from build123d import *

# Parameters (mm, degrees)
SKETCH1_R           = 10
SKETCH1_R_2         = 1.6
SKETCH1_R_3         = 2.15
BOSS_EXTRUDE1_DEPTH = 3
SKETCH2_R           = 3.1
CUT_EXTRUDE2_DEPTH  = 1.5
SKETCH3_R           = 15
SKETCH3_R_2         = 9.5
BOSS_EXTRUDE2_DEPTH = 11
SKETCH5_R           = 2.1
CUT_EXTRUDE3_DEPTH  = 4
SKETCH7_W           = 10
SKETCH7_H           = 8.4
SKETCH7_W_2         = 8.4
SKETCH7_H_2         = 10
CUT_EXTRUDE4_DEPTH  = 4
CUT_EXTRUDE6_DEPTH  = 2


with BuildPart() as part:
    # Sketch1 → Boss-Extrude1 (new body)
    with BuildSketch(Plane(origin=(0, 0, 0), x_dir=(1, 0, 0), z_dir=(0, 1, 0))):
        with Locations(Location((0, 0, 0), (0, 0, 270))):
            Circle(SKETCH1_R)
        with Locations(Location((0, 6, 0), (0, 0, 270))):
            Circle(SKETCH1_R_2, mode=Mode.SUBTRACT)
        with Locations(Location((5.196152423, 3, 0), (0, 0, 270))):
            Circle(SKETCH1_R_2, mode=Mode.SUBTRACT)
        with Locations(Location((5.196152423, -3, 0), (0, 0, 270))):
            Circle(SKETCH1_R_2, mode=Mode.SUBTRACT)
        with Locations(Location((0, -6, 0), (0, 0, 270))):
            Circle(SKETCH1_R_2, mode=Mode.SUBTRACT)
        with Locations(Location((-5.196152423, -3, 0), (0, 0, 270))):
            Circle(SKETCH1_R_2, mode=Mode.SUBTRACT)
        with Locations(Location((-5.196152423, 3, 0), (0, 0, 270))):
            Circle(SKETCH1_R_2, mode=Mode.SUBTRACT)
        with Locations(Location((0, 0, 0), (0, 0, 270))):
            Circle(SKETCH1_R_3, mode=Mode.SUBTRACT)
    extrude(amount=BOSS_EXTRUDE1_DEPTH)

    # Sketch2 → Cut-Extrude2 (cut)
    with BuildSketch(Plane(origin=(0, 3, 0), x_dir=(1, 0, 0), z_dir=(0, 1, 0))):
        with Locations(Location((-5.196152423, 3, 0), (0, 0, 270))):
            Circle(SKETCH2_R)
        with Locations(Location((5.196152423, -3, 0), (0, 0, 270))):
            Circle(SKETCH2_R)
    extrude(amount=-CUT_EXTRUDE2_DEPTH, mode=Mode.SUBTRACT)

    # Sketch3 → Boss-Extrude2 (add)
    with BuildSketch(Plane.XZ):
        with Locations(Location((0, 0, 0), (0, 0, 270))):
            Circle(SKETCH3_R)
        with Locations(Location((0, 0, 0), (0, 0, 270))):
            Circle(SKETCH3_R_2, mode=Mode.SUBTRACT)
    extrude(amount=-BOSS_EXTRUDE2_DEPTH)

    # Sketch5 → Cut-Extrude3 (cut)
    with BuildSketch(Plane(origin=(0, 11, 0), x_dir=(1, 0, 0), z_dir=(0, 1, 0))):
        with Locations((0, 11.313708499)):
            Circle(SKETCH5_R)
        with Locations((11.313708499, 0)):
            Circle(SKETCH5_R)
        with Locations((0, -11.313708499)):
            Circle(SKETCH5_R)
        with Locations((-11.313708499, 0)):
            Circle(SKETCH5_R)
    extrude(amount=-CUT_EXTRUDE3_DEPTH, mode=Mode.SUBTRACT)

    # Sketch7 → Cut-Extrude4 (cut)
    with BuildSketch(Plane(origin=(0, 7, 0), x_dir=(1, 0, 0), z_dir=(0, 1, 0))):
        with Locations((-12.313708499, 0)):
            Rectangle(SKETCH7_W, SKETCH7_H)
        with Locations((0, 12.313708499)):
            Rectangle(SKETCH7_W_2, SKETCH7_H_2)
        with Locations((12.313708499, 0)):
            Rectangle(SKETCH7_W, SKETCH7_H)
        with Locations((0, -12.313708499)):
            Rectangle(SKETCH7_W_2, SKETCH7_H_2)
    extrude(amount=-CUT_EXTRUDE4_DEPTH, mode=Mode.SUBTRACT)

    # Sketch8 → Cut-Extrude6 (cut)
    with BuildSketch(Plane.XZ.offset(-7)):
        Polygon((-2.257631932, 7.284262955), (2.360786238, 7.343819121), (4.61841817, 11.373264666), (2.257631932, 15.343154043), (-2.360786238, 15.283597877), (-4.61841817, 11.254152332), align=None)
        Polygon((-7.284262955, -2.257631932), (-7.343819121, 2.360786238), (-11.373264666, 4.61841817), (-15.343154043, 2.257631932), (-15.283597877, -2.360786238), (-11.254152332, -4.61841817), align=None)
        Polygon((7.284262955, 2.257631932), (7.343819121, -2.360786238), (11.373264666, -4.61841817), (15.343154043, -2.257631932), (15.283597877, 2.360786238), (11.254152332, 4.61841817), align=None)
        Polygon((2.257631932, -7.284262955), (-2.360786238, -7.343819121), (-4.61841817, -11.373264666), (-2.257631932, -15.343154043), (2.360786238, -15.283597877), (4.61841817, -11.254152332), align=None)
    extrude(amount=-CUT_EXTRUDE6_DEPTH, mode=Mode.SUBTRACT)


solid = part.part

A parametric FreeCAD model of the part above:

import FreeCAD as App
import Part
import Sketcher
Q = App.Units.Quantity

doc = App.newDocument("Part")
body = doc.addObject("PartDesign::Body", "Body")

# Sketch on XZ plane
sketch1 = body.newObject("Sketcher::SketchObject", "Sketch")
sketch1.AttachmentSupport = (doc.getObject("XZ_Plane"), [""])
sketch1.MapMode = "FlatFace"
sketch1.addGeometry(Part.Circle(App.Vector(0, 0, 0), App.Vector(0, 0, 1), 10), False)
sketch1.addGeometry(Part.Circle(App.Vector(-5.2, -3, 0), App.Vector(0, 0, 1), 1.6), False)
sketch1.addGeometry(Part.Circle(App.Vector(0, -6, 0), App.Vector(0, 0, 1), 1.6), False)
sketch1.addGeometry(Part.Circle(App.Vector(-5.2, 3, 0), App.Vector(0, 0, 1), 1.6), False)
sketch1.addGeometry(Part.Circle(App.Vector(0, 0, 0), App.Vector(0, 0, 1), 2.1), False)
sketch1.addGeometry(Part.Circle(App.Vector(5.2, -3, 0), App.Vector(0, 0, 1), 1.6), False)
sketch1.addGeometry(Part.Circle(App.Vector(0, 6, 0), App.Vector(0, 0, 1), 1.6), False)
sketch1.addGeometry(Part.Circle(App.Vector(5.2, 3, 0), App.Vector(0, 0, 1), 1.6), False)
sketch1.addConstraint(Sketcher.Constraint("Coincident", 0, 3, -1, 1))
sketch1.addConstraint(Sketcher.Constraint("Coincident", 4, 3, -1, 1))
sketch1.addConstraint(Sketcher.Constraint("Equal", 1, 2))
sketch1.addConstraint(Sketcher.Constraint("Equal", 2, 3))
sketch1.addConstraint(Sketcher.Constraint("Equal", 3, 5))
sketch1.addConstraint(Sketcher.Constraint("Equal", 5, 6))
sketch1.addConstraint(Sketcher.Constraint("Equal", 6, 7))
sketch1.addConstraint(Sketcher.Constraint("Symmetric", 3, 3, 5, 3, -1, 1))
sketch1.addConstraint(Sketcher.Constraint("Symmetric", 2, 3, 6, 3, -1, 1))
sketch1.addConstraint(Sketcher.Constraint("Symmetric", 1, 3, 7, 3, -1, 1))
sketch1.addConstraint(Sketcher.Constraint("Symmetric", 1, 3, 5, 3, -2))
sketch1.addConstraint(Sketcher.Constraint("PointOnObject", 2, 3, -2))
sketch1.addConstraint(Sketcher.Constraint("Diameter", 0, Q("20 mm")))
sketch1.addConstraint(Sketcher.Constraint("Diameter", 1, Q("3.2 mm")))
sketch1.addConstraint(Sketcher.Constraint("Diameter", 4, Q("4.3 mm")))
sketch1.addConstraint(Sketcher.Constraint("DistanceY", 1, 3, -1, 1, Q("3 mm")))
sketch1.addConstraint(Sketcher.Constraint("DistanceY", 2, 3, -1, 1, Q("6 mm")))
sketch1.addConstraint(Sketcher.Constraint("DistanceX", 1, 3, -1, 1, Q("5.196152 mm")))
pad1 = body.newObject("PartDesign::Pad", "Pad")
pad1.Profile = sketch1
pad1.Length = 3
pad1.Reversed = True

# Sketch on XZ plane
sketch2 = body.newObject("Sketcher::SketchObject", "Sketch001")
sketch2.AttachmentSupport = (doc.getObject("XZ_Plane"), [""])
sketch2.MapMode = "FlatFace"
sketch2.AttachmentOffset = App.Placement(App.Vector(0, 0, -3), App.Rotation())
sketch2.addGeometry(Part.Circle(App.Vector(-5.2, -3, 0), App.Vector(0, 0, 1), 3.1), False)
sketch2.addGeometry(Part.Circle(App.Vector(5.2, 3, 0), App.Vector(0, 0, 1), 3.1), False)
sketch2.addConstraint(Sketcher.Constraint("Equal", 0, 1))
sketch2.addConstraint(Sketcher.Constraint("Symmetric", 0, 3, 1, 3, -1, 1))
sketch2.addConstraint(Sketcher.Constraint("Diameter", 0, Q("6.2 mm")))
sketch2.addConstraint(Sketcher.Constraint("DistanceY", 0, 3, -1, 1, Q("3 mm")))
sketch2.addConstraint(Sketcher.Constraint("DistanceX", 0, 3, -1, 1, Q("5.196152 mm")))
pocket1 = body.newObject("PartDesign::Pocket", "Pocket")
pocket1.Profile = sketch2
pocket1.Length = 1.5
pocket1.Reversed = True

# Sketch on XZ plane
sketch3 = body.newObject("Sketcher::SketchObject", "Sketch002")
sketch3.AttachmentSupport = (doc.getObject("XZ_Plane"), [""])
sketch3.MapMode = "FlatFace"
sketch3.addGeometry(Part.Circle(App.Vector(0, 0, 0), App.Vector(0, 0, 1), 15), False)
sketch3.addGeometry(Part.Circle(App.Vector(0, 0, 0), App.Vector(0, 0, 1), 10), False)
sketch3.addConstraint(Sketcher.Constraint("Coincident", 0, 3, -1, 1))
sketch3.addConstraint(Sketcher.Constraint("Coincident", 1, 3, -1, 1))
sketch3.addConstraint(Sketcher.Constraint("Diameter", 0, Q("30 mm")))
sketch3.addConstraint(Sketcher.Constraint("Diameter", 1, Q("19 mm")))
pad2 = body.newObject("PartDesign::Pad", "Pad001")
pad2.Profile = sketch3
pad2.Length = 11
pad2.Reversed = True

# Sketch on XZ plane
sketch4 = body.newObject("Sketcher::SketchObject", "Sketch003")
sketch4.AttachmentSupport = (doc.getObject("XZ_Plane"), [""])
sketch4.MapMode = "FlatFace"
sketch4.AttachmentOffset = App.Placement(App.Vector(0, 0, -11), App.Rotation())
sketch4.addGeometry(Part.Circle(App.Vector(0, -11.3, 0), App.Vector(0, 0, 1), 2.1), False)
sketch4.addGeometry(Part.Circle(App.Vector(11.3, 0, 0), App.Vector(0, 0, 1), 2.1), False)
sketch4.addGeometry(Part.Circle(App.Vector(0, 11.3, 0), App.Vector(0, 0, 1), 2.1), False)
sketch4.addGeometry(Part.Circle(App.Vector(-11.3, 0, 0), App.Vector(0, 0, 1), 2.1), False)
sketch4.addConstraint(Sketcher.Constraint("Equal", 0, 1))
sketch4.addConstraint(Sketcher.Constraint("Equal", 1, 2))
sketch4.addConstraint(Sketcher.Constraint("Equal", 2, 3))
sketch4.addConstraint(Sketcher.Constraint("Symmetric", 0, 3, 2, 3, -1, 1))
sketch4.addConstraint(Sketcher.Constraint("Symmetric", 1, 3, 3, 3, -1, 1))
sketch4.addConstraint(Sketcher.Constraint("PointOnObject", 0, 3, -2))
sketch4.addConstraint(Sketcher.Constraint("PointOnObject", 1, 3, -1))
sketch4.addConstraint(Sketcher.Constraint("Diameter", 0, Q("4.2 mm")))
sketch4.addConstraint(Sketcher.Constraint("DistanceY", 0, 3, -1, 1, Q("11.313708 mm")))
sketch4.addConstraint(Sketcher.Constraint("DistanceX", -1, 1, 1, 3, Q("11.313708 mm")))
pocket2 = body.newObject("PartDesign::Pocket", "Pocket001")
pocket2.Profile = sketch4
pocket2.Length = 4
pocket2.Reversed = True

# Sketch on XZ plane
sketch5 = body.newObject("Sketcher::SketchObject", "Sketch004")
sketch5.AttachmentSupport = (doc.getObject("XZ_Plane"), [""])
sketch5.MapMode = "FlatFace"
sketch5.AttachmentOffset = App.Placement(App.Vector(0, 0, -7), App.Rotation())
sketch5.addGeometry(Part.LineSegment(App.Vector(-17, -4, 0), App.Vector(-17, 4, 0)), False)
sketch5.addGeometry(Part.LineSegment(App.Vector(-17, 4, 0), App.Vector(-7, 4, 0)), False)
sketch5.addGeometry(Part.LineSegment(App.Vector(-7, 4, 0), App.Vector(-7, -4, 0)), False)
sketch5.addGeometry(Part.LineSegment(App.Vector(-7, -4, 0), App.Vector(-17, -4, 0)), False)
sketch5.addGeometry(Part.LineSegment(App.Vector(-4, -17, 0), App.Vector(-4, -7, 0)), False)
sketch5.addGeometry(Part.LineSegment(App.Vector(-4, -7, 0), App.Vector(4, -7, 0)), False)
sketch5.addGeometry(Part.LineSegment(App.Vector(4, -7, 0), App.Vector(4, -17, 0)), False)
sketch5.addGeometry(Part.LineSegment(App.Vector(4, -17, 0), App.Vector(-4, -17, 0)), False)
sketch5.addGeometry(Part.LineSegment(App.Vector(7, -4, 0), App.Vector(7, 4, 0)), False)
sketch5.addGeometry(Part.LineSegment(App.Vector(7, 4, 0), App.Vector(17, 4, 0)), False)
sketch5.addGeometry(Part.LineSegment(App.Vector(17, 4, 0), App.Vector(17, -4, 0)), False)
sketch5.addGeometry(Part.LineSegment(App.Vector(17, -4, 0), App.Vector(7, -4, 0)), False)
sketch5.addGeometry(Part.LineSegment(App.Vector(-4, 7, 0), App.Vector(-4, 17, 0)), False)
sketch5.addGeometry(Part.LineSegment(App.Vector(-4, 17, 0), App.Vector(4, 17, 0)), False)
sketch5.addGeometry(Part.LineSegment(App.Vector(4, 17, 0), App.Vector(4, 7, 0)), False)
sketch5.addGeometry(Part.LineSegment(App.Vector(4, 7, 0), App.Vector(-4, 7, 0)), False)
sketch5.addConstraint(Sketcher.Constraint("Coincident", 0, 2, 1, 1))
sketch5.addConstraint(Sketcher.Constraint("Coincident", 1, 2, 2, 1))
sketch5.addConstraint(Sketcher.Constraint("Coincident", 2, 2, 3, 1))
sketch5.addConstraint(Sketcher.Constraint("Coincident", 3, 2, 0, 1))
sketch5.addConstraint(Sketcher.Constraint("Coincident", 4, 2, 5, 1))
sketch5.addConstraint(Sketcher.Constraint("Coincident", 5, 2, 6, 1))
sketch5.addConstraint(Sketcher.Constraint("Coincident", 6, 2, 7, 1))
sketch5.addConstraint(Sketcher.Constraint("Coincident", 7, 2, 4, 1))
sketch5.addConstraint(Sketcher.Constraint("Coincident", 8, 2, 9, 1))
sketch5.addConstraint(Sketcher.Constraint("Coincident", 9, 2, 10, 1))
sketch5.addConstraint(Sketcher.Constraint("Coincident", 10, 2, 11, 1))
sketch5.addConstraint(Sketcher.Constraint("Coincident", 11, 2, 8, 1))
sketch5.addConstraint(Sketcher.Constraint("Coincident", 12, 2, 13, 1))
sketch5.addConstraint(Sketcher.Constraint("Coincident", 13, 2, 14, 1))
sketch5.addConstraint(Sketcher.Constraint("Coincident", 14, 2, 15, 1))
sketch5.addConstraint(Sketcher.Constraint("Coincident", 15, 2, 12, 1))
sketch5.addConstraint(Sketcher.Constraint("Vertical", 0))
sketch5.addConstraint(Sketcher.Constraint("Horizontal", 1))
sketch5.addConstraint(Sketcher.Constraint("Vertical", 2))
sketch5.addConstraint(Sketcher.Constraint("Horizontal", 3))
sketch5.addConstraint(Sketcher.Constraint("Vertical", 4))
sketch5.addConstraint(Sketcher.Constraint("Horizontal", 5))
sketch5.addConstraint(Sketcher.Constraint("Vertical", 6))
sketch5.addConstraint(Sketcher.Constraint("Horizontal", 7))
sketch5.addConstraint(Sketcher.Constraint("Vertical", 8))
sketch5.addConstraint(Sketcher.Constraint("Horizontal", 9))
sketch5.addConstraint(Sketcher.Constraint("Vertical", 10))
sketch5.addConstraint(Sketcher.Constraint("Horizontal", 11))
sketch5.addConstraint(Sketcher.Constraint("Vertical", 12))
sketch5.addConstraint(Sketcher.Constraint("Horizontal", 13))
sketch5.addConstraint(Sketcher.Constraint("Vertical", 14))
sketch5.addConstraint(Sketcher.Constraint("Horizontal", 15))
sketch5.addConstraint(Sketcher.Constraint("Symmetric", 2, 2, 8, 2, -1, 1))
sketch5.addConstraint(Sketcher.Constraint("Symmetric", 0, 2, 10, 2, -1, 1))
sketch5.addConstraint(Sketcher.Constraint("Symmetric", 6, 2, 12, 2, -1, 1))
sketch5.addConstraint(Sketcher.Constraint("Symmetric", 4, 2, 14, 2, -1, 1))
sketch5.addConstraint(Sketcher.Constraint("Horizontal", 1, 2, 8, 2))
sketch5.addConstraint(Sketcher.Constraint("Vertical", 7, 2, 12, 2))
sketch5.addConstraint(Sketcher.Constraint("Equal", 15, 0))
sketch5.addConstraint(Sketcher.Constraint("Equal", 11, 4))
sketch5.addConstraint(Sketcher.Constraint("DistanceX", 1, 1, 1, 2, Q("10 mm")))
sketch5.addConstraint(Sketcher.Constraint("DistanceX", 5, 1, 5, 2, Q("8.4 mm")))
sketch5.addConstraint(Sketcher.Constraint("DistanceX", 0, 2, -1, 1, Q("17.313708 mm")))
sketch5.addConstraint(Sketcher.Constraint("DistanceY", 4, 2, -1, 1, Q("7.313708 mm")))
pocket3 = body.newObject("PartDesign::Pocket", "Pocket002")
pocket3.Profile = sketch5
pocket3.Length = 4
pocket3.Reversed = True

# Sketch on XZ plane
sketch6 = body.newObject("Sketcher::SketchObject", "Sketch005")
sketch6.AttachmentSupport = (doc.getObject("XZ_Plane"), [""])
sketch6.MapMode = "FlatFace"
sketch6.AttachmentOffset = App.Placement(App.Vector(0, 0, -7), App.Rotation())
sketch6.addGeometry(Part.LineSegment(App.Vector(-2.3, 7.3, 0), App.Vector(2.4, 7.3, 0)), False)
sketch6.addGeometry(Part.LineSegment(App.Vector(2.4, 7.3, 0), App.Vector(4.6, 11.4, 0)), False)
sketch6.addGeometry(Part.LineSegment(App.Vector(4.6, 11.4, 0), App.Vector(2.3, 15.3, 0)), False)
sketch6.addGeometry(Part.LineSegment(App.Vector(2.3, 15.3, 0), App.Vector(-2.4, 15.3, 0)), False)
sketch6.addGeometry(Part.LineSegment(App.Vector(-2.4, 15.3, 0), App.Vector(-4.6, 11.3, 0)), False)
sketch6.addGeometry(Part.LineSegment(App.Vector(-4.6, 11.3, 0), App.Vector(-2.3, 7.3, 0)), False)
sketch6.addGeometry(Part.LineSegment(App.Vector(-7.3, -2.3, 0), App.Vector(-7.3, 2.4, 0)), False)
sketch6.addGeometry(Part.LineSegment(App.Vector(-7.3, 2.4, 0), App.Vector(-11.4, 4.6, 0)), False)
sketch6.addGeometry(Part.LineSegment(App.Vector(-11.4, 4.6, 0), App.Vector(-15.3, 2.3, 0)), False)
sketch6.addGeometry(Part.LineSegment(App.Vector(-15.3, 2.3, 0), App.Vector(-15.3, -2.4, 0)), False)
sketch6.addGeometry(Part.LineSegment(App.Vector(-15.3, -2.4, 0), App.Vector(-11.3, -4.6, 0)), False)
sketch6.addGeometry(Part.LineSegment(App.Vector(-11.3, -4.6, 0), App.Vector(-7.3, -2.3, 0)), False)
sketch6.addGeometry(Part.LineSegment(App.Vector(7.3, 2.3, 0), App.Vector(7.3, -2.4, 0)), False)
sketch6.addGeometry(Part.LineSegment(App.Vector(7.3, -2.4, 0), App.Vector(11.4, -4.6, 0)), False)
sketch6.addGeometry(Part.LineSegment(App.Vector(11.4, -4.6, 0), App.Vector(15.3, -2.3, 0)), False)
sketch6.addGeometry(Part.LineSegment(App.Vector(15.3, -2.3, 0), App.Vector(15.3, 2.4, 0)), False)
sketch6.addGeometry(Part.LineSegment(App.Vector(15.3, 2.4, 0), App.Vector(11.3, 4.6, 0)), False)
sketch6.addGeometry(Part.LineSegment(App.Vector(11.3, 4.6, 0), App.Vector(7.3, 2.3, 0)), False)
sketch6.addGeometry(Part.LineSegment(App.Vector(2.3, -7.3, 0), App.Vector(-2.4, -7.3, 0)), False)
sketch6.addGeometry(Part.LineSegment(App.Vector(-2.4, -7.3, 0), App.Vector(-4.6, -11.4, 0)), False)
sketch6.addGeometry(Part.LineSegment(App.Vector(-4.6, -11.4, 0), App.Vector(-2.3, -15.3, 0)), False)
sketch6.addGeometry(Part.LineSegment(App.Vector(-2.3, -15.3, 0), App.Vector(2.4, -15.3, 0)), False)
sketch6.addGeometry(Part.LineSegment(App.Vector(2.4, -15.3, 0), App.Vector(4.6, -11.3, 0)), False)
sketch6.addGeometry(Part.LineSegment(App.Vector(4.6, -11.3, 0), App.Vector(2.3, -7.3, 0)), False)
sketch6.addConstraint(Sketcher.Constraint("Coincident", 0, 2, 1, 1))
sketch6.addConstraint(Sketcher.Constraint("Coincident", 1, 2, 2, 1))
sketch6.addConstraint(Sketcher.Constraint("Coincident", 2, 2, 3, 1))
sketch6.addConstraint(Sketcher.Constraint("Coincident", 3, 2, 4, 1))
sketch6.addConstraint(Sketcher.Constraint("Coincident", 4, 2, 5, 1))
sketch6.addConstraint(Sketcher.Constraint("Coincident", 5, 2, 0, 1))
sketch6.addConstraint(Sketcher.Constraint("Coincident", 6, 2, 7, 1))
sketch6.addConstraint(Sketcher.Constraint("Coincident", 7, 2, 8, 1))
sketch6.addConstraint(Sketcher.Constraint("Coincident", 8, 2, 9, 1))
sketch6.addConstraint(Sketcher.Constraint("Coincident", 9, 2, 10, 1))
sketch6.addConstraint(Sketcher.Constraint("Coincident", 10, 2, 11, 1))
sketch6.addConstraint(Sketcher.Constraint("Coincident", 11, 2, 6, 1))
sketch6.addConstraint(Sketcher.Constraint("Coincident", 12, 2, 13, 1))
sketch6.addConstraint(Sketcher.Constraint("Coincident", 13, 2, 14, 1))
sketch6.addConstraint(Sketcher.Constraint("Coincident", 14, 2, 15, 1))
sketch6.addConstraint(Sketcher.Constraint("Coincident", 15, 2, 16, 1))
sketch6.addConstraint(Sketcher.Constraint("Coincident", 16, 2, 17, 1))
sketch6.addConstraint(Sketcher.Constraint("Coincident", 17, 2, 12, 1))
sketch6.addConstraint(Sketcher.Constraint("Coincident", 18, 2, 19, 1))
sketch6.addConstraint(Sketcher.Constraint("Coincident", 19, 2, 20, 1))
sketch6.addConstraint(Sketcher.Constraint("Coincident", 20, 2, 21, 1))
sketch6.addConstraint(Sketcher.Constraint("Coincident", 21, 2, 22, 1))
sketch6.addConstraint(Sketcher.Constraint("Coincident", 22, 2, 23, 1))
sketch6.addConstraint(Sketcher.Constraint("Coincident", 23, 2, 18, 1))
sketch6.addConstraint(Sketcher.Constraint("Symmetric", 6, 2, 12, 2, -1, 1))
sketch6.addConstraint(Sketcher.Constraint("Symmetric", 7, 2, 13, 2, -1, 1))
sketch6.addConstraint(Sketcher.Constraint("Symmetric", 8, 2, 14, 2, -1, 1))
sketch6.addConstraint(Sketcher.Constraint("Symmetric", 9, 2, 15, 2, -1, 1))
sketch6.addConstraint(Sketcher.Constraint("Symmetric", 10, 2, 16, 2, -1, 1))
sketch6.addConstraint(Sketcher.Constraint("Symmetric", 11, 2, 17, 2, -1, 1))
sketch6.addConstraint(Sketcher.Constraint("Symmetric", 0, 2, 18, 2, -1, 1))
sketch6.addConstraint(Sketcher.Constraint("Symmetric", 1, 2, 19, 2, -1, 1))
sketch6.addConstraint(Sketcher.Constraint("Symmetric", 2, 2, 20, 2, -1, 1))
sketch6.addConstraint(Sketcher.Constraint("Symmetric", 3, 2, 21, 2, -1, 1))
sketch6.addConstraint(Sketcher.Constraint("Symmetric", 4, 2, 22, 2, -1, 1))
sketch6.addConstraint(Sketcher.Constraint("Symmetric", 5, 2, 23, 2, -1, 1))
sketch6.addConstraint(Sketcher.Constraint("Parallel", 0, 3))
sketch6.addConstraint(Sketcher.Constraint("Parallel", 1, 4))
sketch6.addConstraint(Sketcher.Constraint("Parallel", 2, 5))
sketch6.addConstraint(Sketcher.Constraint("Perpendicular", 3, 6))
sketch6.addConstraint(Sketcher.Constraint("Perpendicular", 4, 7))
sketch6.addConstraint(Sketcher.Constraint("Perpendicular", 5, 8))
sketch6.addConstraint(Sketcher.Constraint("Parallel", 6, 9))
sketch6.addConstraint(Sketcher.Constraint("Parallel", 7, 10))
sketch6.addConstraint(Sketcher.Constraint("Parallel", 8, 11))
sketch6.addConstraint(Sketcher.Constraint("Horizontal", 9, 2, 12, 2))
sketch6.addConstraint(Sketcher.Constraint("Horizontal", 10, 2, 13, 2))
sketch6.addConstraint(Sketcher.Constraint("Vertical", 3, 2, 18, 2))
sketch6.addConstraint(Sketcher.Constraint("Vertical", 4, 2, 19, 2))
sketch6.addConstraint(Sketcher.Constraint("Equal", 0, 1))
sketch6.addConstraint(Sketcher.Constraint("Equal", 1, 2))
sketch6.addConstraint(Sketcher.Constraint("Equal", 5, 6))
sketch6.addConstraint(Sketcher.Constraint("Equal", 6, 7))
sketch6.addConstraint(Sketcher.Constraint("Equal", 7, 8))
sketch6.addConstraint(Sketcher.Constraint("DistanceY", 4, 2, 2, 2, Q("4.089002 mm")))
sketch6.addConstraint(Sketcher.Constraint("DistanceX", 6, 2, 4, 2, Q("2.725401 mm")))
sketch6.addConstraint(Sketcher.Constraint("DistanceY", 7, 2, 0, 2, Q("2.725401 mm")))
sketch6.addConstraint(Sketcher.Constraint("DistanceY", -1, 1, 0, 2, Q("7.343819 mm")))
sketch6.addConstraint(Sketcher.Constraint("DistanceX", -1, 1, 2, 2, Q("2.257632 mm")))
sketch6.addConstraint(Sketcher.Constraint("DistanceX", 0, 2, 1, 2, Q("2.257632 mm")))
pocket4 = body.newObject("PartDesign::Pocket", "Pocket003")
pocket4.Profile = sketch6
pocket4.Length = 2

doc.recompute()
